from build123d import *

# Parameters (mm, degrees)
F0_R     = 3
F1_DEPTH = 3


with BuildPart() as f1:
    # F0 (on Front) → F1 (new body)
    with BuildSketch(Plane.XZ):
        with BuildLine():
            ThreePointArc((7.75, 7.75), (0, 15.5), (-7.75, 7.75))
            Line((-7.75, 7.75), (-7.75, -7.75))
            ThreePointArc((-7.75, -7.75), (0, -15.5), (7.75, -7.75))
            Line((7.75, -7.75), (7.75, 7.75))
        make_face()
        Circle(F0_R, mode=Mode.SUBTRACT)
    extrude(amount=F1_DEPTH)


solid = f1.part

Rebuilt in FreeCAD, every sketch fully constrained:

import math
import FreeCAD as App
import Part
import Sketcher

doc = App.newDocument("Part")
body = doc.addObject("PartDesign::Body", "Body")

sketch1 = body.newObject("Sketcher::SketchObject", "Sketch")
sketch1.AttachmentSupport = (doc.getObject("XZ_Plane"), [""])
sketch1.MapMode = "FlatFace"
sketch1.addGeometry(Part.ArcOfCircle(Part.Circle(App.Vector(0, 7.8, 0), App.Vector(0, 0, 1), 7.8), math.radians(0), math.radians(180)), False)
sketch1.addGeometry(Part.LineSegment(App.Vector(-7.8, 7.8, 0), App.Vector(-7.8, -7.8, 0)), False)
sketch1.addGeometry(Part.ArcOfCircle(Part.Circle(App.Vector(0, -7.8, 0), App.Vector(0, 0, 1), 7.8), math.radians(180), math.radians(360)), False)
sketch1.addGeometry(Part.LineSegment(App.Vector(7.8, -7.8, 0), App.Vector(7.8, 7.8, 0)), False)
sketch1.addGeometry(Part.Circle(App.Vector(0, 0, 0), App.Vector(0, 0, 1), 3), False)
sketch1.addConstraint(Sketcher.Constraint("Tangent", 0, 2, 1, 1))
sketch1.addConstraint(Sketcher.Constraint("Tangent", 1, 2, 2, 1))
sketch1.addConstraint(Sketcher.Constraint("Tangent", 2, 2, 3, 1))
sketch1.addConstraint(Sketcher.Constraint("Tangent", 3, 2, 0, 1))
sketch1.addConstraint(Sketcher.Constraint("Vertical", 1))
sketch1.addConstraint(Sketcher.Constraint("Vertical", 3))
sketch1.addConstraint(Sketcher.Constraint("Coincident", 4, 3, -1, 1))
sketch1.addConstraint(Sketcher.Constraint("Symmetric", 0, 3, 2, 3, -1, 1))
sketch1.addConstraint(Sketcher.Constraint("Diameter", 4, 6.0))
sketch1.addConstraint(Sketcher.Constraint("Radius", 0, 7.75))
sketch1.addConstraint(Sketcher.Constraint("DistanceY", 1, 2, 1, 1, 15.5))
pad1 = body.newObject("PartDesign::Pad", "Pad")
pad1.Profile = sketch1
pad1.Length = 3

doc.recompute()
